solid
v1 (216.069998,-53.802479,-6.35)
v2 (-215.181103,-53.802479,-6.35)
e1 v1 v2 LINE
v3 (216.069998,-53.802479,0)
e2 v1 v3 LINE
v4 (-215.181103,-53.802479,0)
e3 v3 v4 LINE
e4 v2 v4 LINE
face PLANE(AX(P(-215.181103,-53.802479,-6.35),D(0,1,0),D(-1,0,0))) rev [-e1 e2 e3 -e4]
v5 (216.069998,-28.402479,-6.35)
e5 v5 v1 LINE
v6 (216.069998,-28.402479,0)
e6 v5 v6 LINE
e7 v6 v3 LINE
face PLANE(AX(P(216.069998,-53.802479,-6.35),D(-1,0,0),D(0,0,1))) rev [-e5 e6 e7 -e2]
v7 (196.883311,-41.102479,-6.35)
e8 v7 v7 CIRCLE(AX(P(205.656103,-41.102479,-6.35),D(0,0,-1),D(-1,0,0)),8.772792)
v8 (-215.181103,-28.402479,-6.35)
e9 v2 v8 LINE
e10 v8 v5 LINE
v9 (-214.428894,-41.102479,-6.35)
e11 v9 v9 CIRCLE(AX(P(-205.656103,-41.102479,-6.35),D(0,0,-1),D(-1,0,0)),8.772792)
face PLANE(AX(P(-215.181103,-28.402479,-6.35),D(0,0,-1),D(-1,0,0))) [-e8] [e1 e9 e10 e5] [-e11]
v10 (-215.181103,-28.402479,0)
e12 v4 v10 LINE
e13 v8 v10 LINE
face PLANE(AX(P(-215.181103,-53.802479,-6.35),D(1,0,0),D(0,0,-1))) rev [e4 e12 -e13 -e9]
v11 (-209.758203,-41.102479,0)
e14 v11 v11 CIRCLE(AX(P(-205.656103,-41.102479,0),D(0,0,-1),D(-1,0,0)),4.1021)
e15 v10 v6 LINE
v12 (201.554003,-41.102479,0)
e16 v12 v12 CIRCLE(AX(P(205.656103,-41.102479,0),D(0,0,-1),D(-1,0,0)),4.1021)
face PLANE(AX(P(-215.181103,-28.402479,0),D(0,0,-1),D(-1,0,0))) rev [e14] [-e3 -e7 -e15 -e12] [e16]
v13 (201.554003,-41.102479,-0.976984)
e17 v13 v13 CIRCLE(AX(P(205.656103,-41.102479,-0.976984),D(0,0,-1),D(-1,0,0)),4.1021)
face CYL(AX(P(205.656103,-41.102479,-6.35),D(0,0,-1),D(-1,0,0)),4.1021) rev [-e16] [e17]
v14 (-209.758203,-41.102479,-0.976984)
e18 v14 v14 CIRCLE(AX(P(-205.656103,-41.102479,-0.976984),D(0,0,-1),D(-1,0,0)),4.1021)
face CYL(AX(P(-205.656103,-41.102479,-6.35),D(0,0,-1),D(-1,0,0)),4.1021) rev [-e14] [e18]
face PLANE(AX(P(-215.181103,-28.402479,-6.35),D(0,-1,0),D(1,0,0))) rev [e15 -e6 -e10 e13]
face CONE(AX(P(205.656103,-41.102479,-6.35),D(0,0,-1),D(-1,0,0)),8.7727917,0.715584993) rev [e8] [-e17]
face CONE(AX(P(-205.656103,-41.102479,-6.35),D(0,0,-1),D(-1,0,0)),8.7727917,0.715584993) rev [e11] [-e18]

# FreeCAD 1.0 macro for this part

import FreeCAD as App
import Part
import Sketcher
Q = App.Units.Quantity


def add_polygon(sketch, points):
    """Adds a closed chain of lines whose ends are joined by coincident constraints."""
    first, n = sketch.GeometryCount, len(points)
    for a, b in zip(points, points[1:] + points[:1]):
        sketch.addGeometry(Part.LineSegment(App.Vector(*a, 0), App.Vector(*b, 0)), False)
    for i in range(n):
        sketch.addConstraint(Sketcher.Constraint("Coincident", first + i, 2, first + (i + 1) % n, 1))

doc = App.newDocument("Part")
params = doc.addObject("Spreadsheet::Sheet", "Params")
for row, (alias, value) in enumerate([
    ("sketch1_height", "1 in"),
    ("pad1_length", "0.25 in"),
    ("sketch2_height", "0.25 in"),
    ("groove_angle", "360 deg"),
    ("linearpattern_pitch", "411.312205 mm"),
], start=1):
    params.set(f"A{row}", alias)
    params.set(f"B{row}", "=" + value)
    params.setAlias(f"B{row}", alias)

body = doc.addObject("PartDesign::Body", "Body")

sketch1 = doc.addObject("Sketcher::SketchObject", "Sketch")
body.addObject(sketch1)
sketch1.AttachmentSupport = (doc.XY_Plane, [""])
sketch1.MapMode = "FlatFace"
add_polygon(sketch1, [(216, -28), (216, -54), (-215, -54), (-215, -28)])
sketch1.addConstraint([
    Sketcher.Constraint("Vertical", 0),
    Sketcher.Constraint("Horizontal", 1),
    Sketcher.Constraint("Vertical", 2),
    Sketcher.Constraint("Horizontal", 3),
    Sketcher.Constraint("DistanceY", 0, 2, 0, 1, Q("1 in")),
    Sketcher.Constraint("DistanceX", 1, 2, 1, 1, Q("431.251101 mm")),
    Sketcher.Constraint("DistanceX", -1, 1, 0, 2, Q("216.069998 mm")),
    Sketcher.Constraint("DistanceY", 0, 2, -1, 1, Q("53.802479 mm")),
])
sketch1.setExpression("Constraints[8]", "Params.sketch1_height")
pad1 = doc.addObject("PartDesign::Pad", "Pad")
body.addObject(pad1)
pad1.Profile = sketch1
pad1.setExpression("Length", "Params.pad1_length")
pad1.Reversed = True

sketch2 = doc.addObject("Sketcher::SketchObject", "Sketch001")
body.addObject(sketch2)
sketch2.AttachmentSupport = (doc.YZ_Plane, [""])
sketch2.MapMode = "FlatFace"
sketch2.AttachmentOffset = App.Placement(App.Vector(0, 0, 205.656103), App.Rotation())
add_polygon(sketch2, [(-41.1, 0), (-41.1, -6.3), (-32.3, -6.3), (-37, -1), (-37, 0)])
sketch2.addGeometry(Part.LineSegment(App.Vector(-41.1, -6.3, 0), App.Vector(-41.1, 0, 0)), True)
sketch2.addConstraint([
    Sketcher.Constraint("Vertical", 0),
    Sketcher.Constraint("Horizontal", 1),
    Sketcher.Constraint("Vertical", 3),
    Sketcher.Constraint("Horizontal", 4),
    Sketcher.Constraint("Vertical", 5),
    Sketcher.Constraint("Coincident", 5, 1, 0, 2),
    Sketcher.Constraint("PointOnObject", 3, 2, -1),
    Sketcher.Constraint("PointOnObject", 5, 2, -1),
    Sketcher.Constraint("Angle", 2, Q("131 deg")),
    Sketcher.Constraint("DistanceY", 0, 2, 0, 1, Q("0.25 in")),
    Sketcher.Constraint("DistanceX", 4, 2, 4, 1, Q("0.1615 in")),
    Sketcher.Constraint("DistanceX", 1, 1, 1, 2, Q("8.772792 mm")),
    Sketcher.Constraint("DistanceX", 0, 2, -1, 1, Q("41.102479 mm")),
])
sketch2.setExpression("Constraints[14]", "Params.sketch2_height")
groove = doc.addObject("PartDesign::Groove", "Groove")
body.addObject(groove)
groove.Profile = sketch2
groove.ReferenceAxis = (sketch2, ["Axis0"])
groove.setExpression("Angle", "Params.groove_angle")
doc.recompute()

linearpattern = doc.addObject("PartDesign::LinearPattern", "LinearPattern")
body.addObject(linearpattern)
linearpattern.Originals = [groove]
linearpattern.Direction = (doc.X_Axis, [""])
linearpattern.Mode = "offset"
linearpattern.setExpression("Offset", "Params.linearpattern_pitch")
linearpattern.Occurrences = 2
linearpattern.Reversed = True
body.Tip = linearpattern

doc.recompute()
